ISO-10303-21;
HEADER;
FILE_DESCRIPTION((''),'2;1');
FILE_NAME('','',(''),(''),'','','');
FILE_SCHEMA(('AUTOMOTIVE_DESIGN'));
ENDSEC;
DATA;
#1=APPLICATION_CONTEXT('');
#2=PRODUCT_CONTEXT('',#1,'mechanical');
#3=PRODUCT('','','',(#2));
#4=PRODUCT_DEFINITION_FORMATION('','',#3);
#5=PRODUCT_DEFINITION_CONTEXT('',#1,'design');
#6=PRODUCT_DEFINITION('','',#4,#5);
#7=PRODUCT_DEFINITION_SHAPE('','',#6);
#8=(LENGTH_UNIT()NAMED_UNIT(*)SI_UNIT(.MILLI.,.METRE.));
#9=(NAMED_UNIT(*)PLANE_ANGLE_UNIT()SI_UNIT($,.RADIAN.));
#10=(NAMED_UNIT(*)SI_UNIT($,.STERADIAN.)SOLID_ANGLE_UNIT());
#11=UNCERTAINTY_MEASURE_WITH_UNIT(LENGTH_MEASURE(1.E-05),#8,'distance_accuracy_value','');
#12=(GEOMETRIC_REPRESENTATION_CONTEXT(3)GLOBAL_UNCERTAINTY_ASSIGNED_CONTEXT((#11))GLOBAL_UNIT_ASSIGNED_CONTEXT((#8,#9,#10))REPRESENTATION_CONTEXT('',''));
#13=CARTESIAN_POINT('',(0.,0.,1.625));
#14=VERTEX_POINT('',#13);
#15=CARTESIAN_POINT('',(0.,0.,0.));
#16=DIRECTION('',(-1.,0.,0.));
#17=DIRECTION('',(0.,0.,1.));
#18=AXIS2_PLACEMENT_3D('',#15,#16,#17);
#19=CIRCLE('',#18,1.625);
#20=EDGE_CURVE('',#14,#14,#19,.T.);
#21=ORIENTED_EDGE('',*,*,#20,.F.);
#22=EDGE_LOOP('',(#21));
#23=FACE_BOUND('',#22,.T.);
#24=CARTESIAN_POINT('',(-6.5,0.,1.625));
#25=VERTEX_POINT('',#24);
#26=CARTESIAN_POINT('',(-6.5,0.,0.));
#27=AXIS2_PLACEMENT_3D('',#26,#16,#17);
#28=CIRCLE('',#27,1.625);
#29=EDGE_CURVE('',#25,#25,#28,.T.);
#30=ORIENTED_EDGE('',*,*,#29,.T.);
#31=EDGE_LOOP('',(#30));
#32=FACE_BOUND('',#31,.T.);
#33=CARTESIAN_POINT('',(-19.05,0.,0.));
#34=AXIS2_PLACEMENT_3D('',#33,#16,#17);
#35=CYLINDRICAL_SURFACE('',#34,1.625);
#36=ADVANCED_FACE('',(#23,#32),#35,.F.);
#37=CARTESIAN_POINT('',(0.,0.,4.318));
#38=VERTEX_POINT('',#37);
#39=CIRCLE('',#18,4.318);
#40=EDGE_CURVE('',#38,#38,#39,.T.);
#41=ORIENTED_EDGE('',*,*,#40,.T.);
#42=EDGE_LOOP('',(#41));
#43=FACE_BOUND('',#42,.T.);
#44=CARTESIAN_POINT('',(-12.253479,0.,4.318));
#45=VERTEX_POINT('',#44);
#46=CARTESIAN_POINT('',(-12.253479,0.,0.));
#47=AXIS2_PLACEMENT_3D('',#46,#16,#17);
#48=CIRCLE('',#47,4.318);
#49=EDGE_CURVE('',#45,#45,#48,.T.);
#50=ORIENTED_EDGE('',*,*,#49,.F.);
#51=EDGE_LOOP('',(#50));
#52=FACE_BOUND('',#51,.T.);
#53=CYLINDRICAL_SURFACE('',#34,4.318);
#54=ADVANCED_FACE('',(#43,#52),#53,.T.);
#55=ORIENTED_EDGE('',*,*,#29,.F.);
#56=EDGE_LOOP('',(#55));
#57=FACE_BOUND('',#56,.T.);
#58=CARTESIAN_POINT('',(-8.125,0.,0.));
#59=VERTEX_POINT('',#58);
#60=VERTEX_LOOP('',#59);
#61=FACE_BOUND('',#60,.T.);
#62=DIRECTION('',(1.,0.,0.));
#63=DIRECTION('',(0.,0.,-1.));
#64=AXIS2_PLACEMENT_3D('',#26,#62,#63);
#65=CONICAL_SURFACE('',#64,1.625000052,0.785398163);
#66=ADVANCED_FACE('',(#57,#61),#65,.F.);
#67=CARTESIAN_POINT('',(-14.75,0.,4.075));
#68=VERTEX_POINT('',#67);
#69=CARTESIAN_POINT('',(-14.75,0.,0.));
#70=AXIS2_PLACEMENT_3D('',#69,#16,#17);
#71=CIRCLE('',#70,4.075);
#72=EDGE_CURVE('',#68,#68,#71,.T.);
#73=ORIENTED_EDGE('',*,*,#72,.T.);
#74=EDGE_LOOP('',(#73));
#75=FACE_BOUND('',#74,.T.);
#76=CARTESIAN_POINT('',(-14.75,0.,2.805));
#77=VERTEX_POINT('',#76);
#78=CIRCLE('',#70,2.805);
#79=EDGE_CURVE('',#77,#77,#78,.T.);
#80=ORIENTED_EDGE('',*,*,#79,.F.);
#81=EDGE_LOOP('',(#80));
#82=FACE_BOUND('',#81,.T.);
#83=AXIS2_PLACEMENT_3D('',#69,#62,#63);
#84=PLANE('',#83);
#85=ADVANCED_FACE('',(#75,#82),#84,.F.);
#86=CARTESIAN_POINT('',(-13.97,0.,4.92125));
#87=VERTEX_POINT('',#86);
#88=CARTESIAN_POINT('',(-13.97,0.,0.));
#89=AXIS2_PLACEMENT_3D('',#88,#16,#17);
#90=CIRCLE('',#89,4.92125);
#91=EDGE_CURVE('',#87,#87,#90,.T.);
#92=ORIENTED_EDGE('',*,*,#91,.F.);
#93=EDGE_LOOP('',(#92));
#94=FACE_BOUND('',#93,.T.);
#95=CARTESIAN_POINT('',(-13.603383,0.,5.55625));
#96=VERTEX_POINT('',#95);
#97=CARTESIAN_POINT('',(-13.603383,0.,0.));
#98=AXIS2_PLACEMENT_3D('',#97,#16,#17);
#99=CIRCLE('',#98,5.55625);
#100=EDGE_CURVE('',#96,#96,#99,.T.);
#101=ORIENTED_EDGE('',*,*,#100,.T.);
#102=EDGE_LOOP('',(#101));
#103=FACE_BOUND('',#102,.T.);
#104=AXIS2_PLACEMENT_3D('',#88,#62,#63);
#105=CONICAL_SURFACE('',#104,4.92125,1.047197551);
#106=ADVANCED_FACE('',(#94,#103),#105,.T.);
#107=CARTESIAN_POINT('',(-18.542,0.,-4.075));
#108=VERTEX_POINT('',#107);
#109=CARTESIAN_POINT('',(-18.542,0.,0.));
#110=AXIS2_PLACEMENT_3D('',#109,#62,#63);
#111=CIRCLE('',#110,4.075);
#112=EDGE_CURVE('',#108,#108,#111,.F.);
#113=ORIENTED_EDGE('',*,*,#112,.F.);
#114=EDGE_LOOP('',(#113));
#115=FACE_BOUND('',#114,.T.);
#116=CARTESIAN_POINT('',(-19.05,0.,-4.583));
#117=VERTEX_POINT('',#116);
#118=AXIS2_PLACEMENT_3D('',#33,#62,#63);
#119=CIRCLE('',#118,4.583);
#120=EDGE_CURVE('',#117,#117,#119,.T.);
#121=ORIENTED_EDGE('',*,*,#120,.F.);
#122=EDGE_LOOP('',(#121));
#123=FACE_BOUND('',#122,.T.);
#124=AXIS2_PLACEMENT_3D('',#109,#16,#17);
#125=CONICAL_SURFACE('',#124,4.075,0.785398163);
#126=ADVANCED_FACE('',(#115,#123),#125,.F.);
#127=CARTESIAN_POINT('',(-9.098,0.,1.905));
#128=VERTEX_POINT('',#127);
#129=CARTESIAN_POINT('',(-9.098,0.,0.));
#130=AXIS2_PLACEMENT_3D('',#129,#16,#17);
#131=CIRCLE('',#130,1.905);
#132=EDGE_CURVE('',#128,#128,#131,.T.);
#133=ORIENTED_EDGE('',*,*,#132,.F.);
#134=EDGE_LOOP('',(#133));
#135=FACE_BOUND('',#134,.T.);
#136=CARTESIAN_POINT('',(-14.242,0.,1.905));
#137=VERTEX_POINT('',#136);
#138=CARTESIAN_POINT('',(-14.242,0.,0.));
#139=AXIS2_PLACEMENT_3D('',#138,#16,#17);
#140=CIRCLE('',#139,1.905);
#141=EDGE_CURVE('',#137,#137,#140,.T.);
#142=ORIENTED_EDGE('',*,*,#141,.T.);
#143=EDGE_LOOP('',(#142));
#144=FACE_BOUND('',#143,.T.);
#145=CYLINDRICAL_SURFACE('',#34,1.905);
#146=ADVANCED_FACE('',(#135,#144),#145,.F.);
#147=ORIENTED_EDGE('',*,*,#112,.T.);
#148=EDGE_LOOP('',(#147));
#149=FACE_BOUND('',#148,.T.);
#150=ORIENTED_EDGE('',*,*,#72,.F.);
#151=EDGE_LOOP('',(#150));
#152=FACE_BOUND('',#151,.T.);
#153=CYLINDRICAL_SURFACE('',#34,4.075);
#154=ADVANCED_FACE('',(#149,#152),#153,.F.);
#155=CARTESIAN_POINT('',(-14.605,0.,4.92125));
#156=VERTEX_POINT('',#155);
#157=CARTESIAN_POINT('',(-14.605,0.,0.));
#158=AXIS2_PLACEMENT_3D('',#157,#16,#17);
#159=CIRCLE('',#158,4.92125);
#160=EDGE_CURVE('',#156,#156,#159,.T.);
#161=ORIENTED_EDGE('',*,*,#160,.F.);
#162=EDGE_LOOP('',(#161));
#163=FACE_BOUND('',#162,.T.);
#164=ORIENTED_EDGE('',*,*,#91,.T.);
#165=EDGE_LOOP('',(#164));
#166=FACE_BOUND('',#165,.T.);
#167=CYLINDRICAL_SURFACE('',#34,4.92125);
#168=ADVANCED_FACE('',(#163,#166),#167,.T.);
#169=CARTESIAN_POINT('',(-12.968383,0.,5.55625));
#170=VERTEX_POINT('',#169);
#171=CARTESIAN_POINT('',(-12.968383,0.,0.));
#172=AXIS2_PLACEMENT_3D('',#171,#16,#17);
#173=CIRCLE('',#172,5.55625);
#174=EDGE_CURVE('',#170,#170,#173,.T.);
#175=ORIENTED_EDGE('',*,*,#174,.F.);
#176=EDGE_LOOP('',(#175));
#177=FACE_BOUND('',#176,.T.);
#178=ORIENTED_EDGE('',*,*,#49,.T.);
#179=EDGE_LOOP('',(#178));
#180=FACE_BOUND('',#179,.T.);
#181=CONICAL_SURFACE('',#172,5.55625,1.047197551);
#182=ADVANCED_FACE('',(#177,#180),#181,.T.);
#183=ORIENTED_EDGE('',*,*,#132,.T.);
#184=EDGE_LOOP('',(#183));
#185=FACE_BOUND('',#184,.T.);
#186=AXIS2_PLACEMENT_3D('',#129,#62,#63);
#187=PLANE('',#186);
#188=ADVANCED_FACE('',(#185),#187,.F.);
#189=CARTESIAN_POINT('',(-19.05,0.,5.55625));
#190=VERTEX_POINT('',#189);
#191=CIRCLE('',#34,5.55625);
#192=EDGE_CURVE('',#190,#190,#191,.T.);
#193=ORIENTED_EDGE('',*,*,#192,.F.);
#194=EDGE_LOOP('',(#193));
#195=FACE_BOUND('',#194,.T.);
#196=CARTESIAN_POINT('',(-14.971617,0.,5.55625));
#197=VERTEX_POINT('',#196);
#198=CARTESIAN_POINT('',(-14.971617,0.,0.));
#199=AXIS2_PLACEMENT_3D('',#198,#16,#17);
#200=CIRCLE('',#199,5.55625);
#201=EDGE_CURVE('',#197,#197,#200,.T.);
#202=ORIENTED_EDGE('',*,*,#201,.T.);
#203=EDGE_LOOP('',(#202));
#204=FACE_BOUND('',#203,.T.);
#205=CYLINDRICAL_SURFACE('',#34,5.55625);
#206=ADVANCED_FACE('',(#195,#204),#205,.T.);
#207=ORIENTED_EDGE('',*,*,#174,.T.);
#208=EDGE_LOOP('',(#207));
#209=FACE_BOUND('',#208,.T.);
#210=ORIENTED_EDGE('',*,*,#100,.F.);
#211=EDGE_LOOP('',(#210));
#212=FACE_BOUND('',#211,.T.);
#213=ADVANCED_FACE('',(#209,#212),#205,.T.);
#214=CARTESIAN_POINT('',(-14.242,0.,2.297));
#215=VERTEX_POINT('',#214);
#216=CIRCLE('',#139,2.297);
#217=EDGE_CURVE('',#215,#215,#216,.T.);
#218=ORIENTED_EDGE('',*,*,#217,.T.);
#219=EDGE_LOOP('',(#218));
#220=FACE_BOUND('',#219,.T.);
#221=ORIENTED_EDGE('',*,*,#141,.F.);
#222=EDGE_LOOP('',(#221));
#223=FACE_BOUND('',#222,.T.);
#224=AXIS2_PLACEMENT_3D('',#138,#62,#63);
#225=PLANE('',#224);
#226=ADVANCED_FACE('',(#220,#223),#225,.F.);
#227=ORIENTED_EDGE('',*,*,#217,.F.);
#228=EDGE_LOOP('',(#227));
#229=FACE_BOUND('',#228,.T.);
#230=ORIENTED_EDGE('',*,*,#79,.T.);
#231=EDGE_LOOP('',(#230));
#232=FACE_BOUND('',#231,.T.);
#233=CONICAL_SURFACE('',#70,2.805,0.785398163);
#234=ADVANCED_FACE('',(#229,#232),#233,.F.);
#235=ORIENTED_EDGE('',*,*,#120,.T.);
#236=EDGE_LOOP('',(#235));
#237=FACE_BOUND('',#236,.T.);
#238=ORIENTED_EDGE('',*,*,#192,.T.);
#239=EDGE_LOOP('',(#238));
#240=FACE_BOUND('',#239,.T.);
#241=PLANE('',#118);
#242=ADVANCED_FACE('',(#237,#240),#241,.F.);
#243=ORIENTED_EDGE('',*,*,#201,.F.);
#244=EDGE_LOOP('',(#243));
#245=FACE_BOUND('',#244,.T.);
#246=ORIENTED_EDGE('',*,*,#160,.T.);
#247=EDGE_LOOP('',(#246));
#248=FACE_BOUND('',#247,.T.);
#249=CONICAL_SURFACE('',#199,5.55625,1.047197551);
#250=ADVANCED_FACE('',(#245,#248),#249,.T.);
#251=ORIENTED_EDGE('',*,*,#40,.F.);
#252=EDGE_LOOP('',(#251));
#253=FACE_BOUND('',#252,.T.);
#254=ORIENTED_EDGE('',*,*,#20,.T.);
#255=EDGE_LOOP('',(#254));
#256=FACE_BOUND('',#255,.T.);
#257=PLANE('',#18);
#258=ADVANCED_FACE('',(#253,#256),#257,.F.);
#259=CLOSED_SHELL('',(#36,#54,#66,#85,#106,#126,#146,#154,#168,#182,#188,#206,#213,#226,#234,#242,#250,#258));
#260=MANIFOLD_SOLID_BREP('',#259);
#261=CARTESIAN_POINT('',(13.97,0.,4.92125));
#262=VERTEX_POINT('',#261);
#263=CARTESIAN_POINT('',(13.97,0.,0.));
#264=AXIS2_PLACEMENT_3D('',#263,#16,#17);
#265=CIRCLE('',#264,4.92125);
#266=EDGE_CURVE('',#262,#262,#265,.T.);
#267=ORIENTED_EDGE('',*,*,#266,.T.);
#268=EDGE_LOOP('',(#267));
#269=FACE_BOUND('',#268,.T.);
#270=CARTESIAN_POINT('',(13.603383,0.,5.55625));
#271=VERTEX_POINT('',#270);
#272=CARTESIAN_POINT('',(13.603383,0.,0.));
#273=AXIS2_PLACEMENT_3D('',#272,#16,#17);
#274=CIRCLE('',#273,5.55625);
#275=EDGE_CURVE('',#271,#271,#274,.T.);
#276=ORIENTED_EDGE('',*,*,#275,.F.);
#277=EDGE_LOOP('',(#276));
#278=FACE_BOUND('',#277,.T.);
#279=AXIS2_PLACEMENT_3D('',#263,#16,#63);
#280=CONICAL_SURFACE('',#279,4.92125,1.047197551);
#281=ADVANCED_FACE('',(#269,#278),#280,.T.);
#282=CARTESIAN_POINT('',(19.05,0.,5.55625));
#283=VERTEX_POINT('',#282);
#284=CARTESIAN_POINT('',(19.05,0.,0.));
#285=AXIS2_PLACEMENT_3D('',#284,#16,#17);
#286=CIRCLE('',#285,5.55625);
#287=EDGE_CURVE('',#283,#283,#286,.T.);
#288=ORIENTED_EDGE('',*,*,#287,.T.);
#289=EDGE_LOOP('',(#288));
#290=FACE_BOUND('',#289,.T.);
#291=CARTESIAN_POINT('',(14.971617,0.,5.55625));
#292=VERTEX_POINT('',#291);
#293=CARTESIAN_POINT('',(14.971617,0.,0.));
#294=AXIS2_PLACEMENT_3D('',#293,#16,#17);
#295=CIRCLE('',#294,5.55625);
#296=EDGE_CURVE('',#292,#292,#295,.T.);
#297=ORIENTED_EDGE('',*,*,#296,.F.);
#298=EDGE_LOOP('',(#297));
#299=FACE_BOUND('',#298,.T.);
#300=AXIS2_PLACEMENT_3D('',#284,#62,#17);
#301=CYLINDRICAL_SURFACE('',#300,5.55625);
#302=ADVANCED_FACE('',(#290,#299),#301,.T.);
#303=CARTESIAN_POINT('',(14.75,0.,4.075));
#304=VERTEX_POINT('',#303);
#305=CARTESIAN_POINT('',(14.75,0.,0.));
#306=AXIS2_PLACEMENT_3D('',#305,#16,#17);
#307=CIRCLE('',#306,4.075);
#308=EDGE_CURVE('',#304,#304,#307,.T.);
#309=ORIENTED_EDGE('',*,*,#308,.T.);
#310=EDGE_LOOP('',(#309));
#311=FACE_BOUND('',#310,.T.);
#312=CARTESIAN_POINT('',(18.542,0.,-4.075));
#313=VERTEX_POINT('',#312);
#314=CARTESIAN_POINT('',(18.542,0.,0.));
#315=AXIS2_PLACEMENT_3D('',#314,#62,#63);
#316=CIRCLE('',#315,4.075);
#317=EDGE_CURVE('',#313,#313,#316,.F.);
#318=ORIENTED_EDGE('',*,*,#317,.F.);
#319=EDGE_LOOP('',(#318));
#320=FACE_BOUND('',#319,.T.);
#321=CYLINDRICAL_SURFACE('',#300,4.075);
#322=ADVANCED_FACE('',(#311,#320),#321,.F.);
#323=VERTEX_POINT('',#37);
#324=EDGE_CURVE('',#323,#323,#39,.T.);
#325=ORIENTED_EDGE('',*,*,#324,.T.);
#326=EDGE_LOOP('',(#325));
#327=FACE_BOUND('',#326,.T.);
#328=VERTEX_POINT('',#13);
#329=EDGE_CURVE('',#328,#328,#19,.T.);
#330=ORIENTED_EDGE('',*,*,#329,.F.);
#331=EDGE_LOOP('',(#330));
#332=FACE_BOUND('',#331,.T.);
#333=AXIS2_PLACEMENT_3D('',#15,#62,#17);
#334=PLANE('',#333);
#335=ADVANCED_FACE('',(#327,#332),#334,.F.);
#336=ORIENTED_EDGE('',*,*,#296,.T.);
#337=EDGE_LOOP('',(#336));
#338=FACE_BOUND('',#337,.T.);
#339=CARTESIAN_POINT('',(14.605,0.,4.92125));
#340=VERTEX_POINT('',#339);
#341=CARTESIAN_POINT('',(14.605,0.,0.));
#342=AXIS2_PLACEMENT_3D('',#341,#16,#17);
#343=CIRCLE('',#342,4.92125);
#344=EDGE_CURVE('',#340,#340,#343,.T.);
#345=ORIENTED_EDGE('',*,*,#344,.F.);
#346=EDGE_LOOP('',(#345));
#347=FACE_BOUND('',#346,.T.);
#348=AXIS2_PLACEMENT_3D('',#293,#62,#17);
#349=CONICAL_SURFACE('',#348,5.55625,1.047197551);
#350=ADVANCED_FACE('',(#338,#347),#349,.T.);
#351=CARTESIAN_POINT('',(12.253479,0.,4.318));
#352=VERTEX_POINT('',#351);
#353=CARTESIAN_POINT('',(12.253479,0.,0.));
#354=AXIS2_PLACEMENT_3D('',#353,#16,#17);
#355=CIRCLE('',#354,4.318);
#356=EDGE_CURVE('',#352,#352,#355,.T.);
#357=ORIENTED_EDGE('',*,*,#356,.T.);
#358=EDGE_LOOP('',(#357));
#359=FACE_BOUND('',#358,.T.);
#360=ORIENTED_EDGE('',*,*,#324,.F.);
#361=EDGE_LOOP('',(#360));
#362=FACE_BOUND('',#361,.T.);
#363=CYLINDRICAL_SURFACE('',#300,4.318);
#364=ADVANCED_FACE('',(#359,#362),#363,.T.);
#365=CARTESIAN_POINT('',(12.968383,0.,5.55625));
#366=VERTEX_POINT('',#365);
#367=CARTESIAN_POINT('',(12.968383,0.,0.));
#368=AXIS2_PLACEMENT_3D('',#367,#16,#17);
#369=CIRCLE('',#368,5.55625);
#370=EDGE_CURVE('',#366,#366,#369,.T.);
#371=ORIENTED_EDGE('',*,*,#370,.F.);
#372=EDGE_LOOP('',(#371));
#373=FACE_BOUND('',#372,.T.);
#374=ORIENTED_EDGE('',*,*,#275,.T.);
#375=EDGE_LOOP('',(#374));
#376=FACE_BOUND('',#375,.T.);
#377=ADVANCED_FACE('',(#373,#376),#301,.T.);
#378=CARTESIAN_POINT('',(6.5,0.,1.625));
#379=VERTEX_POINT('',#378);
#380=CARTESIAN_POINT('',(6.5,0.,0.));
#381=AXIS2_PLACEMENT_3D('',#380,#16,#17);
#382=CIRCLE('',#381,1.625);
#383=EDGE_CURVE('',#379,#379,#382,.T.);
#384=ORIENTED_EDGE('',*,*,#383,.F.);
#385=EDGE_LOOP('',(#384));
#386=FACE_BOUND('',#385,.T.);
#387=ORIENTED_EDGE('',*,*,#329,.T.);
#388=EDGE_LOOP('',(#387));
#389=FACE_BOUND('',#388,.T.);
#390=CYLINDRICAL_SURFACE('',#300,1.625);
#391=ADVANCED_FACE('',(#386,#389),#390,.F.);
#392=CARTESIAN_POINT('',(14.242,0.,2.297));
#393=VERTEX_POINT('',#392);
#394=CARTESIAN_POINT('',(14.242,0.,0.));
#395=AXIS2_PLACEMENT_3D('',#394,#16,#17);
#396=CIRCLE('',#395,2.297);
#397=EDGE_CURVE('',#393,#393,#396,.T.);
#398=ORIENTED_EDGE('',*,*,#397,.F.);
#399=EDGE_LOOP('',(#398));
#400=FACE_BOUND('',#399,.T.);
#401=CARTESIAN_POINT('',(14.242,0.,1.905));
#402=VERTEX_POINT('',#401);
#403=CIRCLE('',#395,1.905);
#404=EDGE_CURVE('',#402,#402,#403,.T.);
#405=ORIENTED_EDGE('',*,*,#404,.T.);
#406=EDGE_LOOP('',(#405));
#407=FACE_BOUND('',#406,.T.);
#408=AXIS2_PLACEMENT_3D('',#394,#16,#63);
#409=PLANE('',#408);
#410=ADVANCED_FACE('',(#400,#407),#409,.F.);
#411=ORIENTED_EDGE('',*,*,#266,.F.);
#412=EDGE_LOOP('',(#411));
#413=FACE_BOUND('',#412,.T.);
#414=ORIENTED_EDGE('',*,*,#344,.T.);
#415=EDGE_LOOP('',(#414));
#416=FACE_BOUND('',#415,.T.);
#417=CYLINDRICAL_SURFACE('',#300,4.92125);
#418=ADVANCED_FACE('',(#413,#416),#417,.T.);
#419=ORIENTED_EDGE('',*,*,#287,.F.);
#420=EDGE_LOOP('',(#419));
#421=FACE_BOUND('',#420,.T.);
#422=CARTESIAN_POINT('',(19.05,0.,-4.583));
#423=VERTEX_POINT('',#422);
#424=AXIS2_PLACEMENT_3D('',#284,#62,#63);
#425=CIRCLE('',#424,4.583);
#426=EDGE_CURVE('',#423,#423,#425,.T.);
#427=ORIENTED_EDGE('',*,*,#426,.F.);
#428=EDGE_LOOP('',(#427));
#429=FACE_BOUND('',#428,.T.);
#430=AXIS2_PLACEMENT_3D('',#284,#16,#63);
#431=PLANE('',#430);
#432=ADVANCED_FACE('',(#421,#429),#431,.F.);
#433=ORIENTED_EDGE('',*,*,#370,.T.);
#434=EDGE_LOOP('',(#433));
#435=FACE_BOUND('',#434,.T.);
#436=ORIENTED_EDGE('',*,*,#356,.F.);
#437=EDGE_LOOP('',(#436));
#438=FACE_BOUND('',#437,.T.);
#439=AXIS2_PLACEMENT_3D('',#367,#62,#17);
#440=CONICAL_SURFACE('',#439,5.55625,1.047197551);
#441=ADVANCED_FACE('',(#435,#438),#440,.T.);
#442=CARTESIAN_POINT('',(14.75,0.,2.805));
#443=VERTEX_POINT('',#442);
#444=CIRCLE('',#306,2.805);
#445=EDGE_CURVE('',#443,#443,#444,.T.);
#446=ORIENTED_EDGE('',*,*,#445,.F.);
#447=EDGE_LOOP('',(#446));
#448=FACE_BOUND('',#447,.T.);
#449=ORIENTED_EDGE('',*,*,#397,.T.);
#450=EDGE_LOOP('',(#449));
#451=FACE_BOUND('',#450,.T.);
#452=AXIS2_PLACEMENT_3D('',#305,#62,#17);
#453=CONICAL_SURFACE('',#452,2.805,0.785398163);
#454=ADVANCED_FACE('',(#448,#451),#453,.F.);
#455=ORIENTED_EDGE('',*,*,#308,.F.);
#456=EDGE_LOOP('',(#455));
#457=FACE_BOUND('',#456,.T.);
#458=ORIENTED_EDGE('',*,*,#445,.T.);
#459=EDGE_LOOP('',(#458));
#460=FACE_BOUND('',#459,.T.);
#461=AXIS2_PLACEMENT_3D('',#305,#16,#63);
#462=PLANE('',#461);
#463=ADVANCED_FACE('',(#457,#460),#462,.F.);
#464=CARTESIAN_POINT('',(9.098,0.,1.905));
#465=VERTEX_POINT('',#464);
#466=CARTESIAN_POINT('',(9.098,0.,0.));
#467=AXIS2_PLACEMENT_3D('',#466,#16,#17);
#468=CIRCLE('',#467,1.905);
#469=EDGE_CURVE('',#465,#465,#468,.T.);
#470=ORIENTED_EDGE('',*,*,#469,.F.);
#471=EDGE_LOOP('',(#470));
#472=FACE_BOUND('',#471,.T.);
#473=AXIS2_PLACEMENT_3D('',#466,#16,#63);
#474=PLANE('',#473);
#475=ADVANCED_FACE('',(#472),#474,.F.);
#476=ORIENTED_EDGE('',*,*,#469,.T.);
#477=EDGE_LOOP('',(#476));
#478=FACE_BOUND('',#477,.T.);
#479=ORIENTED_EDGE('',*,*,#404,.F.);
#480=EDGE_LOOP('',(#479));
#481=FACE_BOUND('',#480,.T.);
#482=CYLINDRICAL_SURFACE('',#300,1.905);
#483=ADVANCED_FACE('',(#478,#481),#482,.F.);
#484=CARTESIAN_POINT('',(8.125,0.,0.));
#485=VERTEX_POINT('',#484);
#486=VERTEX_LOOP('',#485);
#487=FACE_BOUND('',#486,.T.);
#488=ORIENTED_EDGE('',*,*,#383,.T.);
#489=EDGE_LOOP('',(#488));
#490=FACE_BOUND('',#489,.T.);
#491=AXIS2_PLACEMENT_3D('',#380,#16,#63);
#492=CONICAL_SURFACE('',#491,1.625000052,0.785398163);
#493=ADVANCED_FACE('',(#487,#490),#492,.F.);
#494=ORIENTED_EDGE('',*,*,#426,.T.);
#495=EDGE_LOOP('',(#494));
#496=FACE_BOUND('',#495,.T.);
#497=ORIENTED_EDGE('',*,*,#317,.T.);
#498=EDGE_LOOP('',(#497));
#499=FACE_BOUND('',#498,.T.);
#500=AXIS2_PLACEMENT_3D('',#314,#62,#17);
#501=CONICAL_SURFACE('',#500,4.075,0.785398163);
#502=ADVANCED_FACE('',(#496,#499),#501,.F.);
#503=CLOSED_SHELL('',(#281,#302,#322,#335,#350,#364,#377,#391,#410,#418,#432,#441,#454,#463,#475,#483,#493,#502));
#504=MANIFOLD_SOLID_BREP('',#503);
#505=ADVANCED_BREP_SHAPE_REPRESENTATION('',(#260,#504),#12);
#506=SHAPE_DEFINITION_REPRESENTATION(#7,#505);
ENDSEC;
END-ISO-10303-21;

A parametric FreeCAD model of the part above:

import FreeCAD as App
import Part
import Sketcher
Q = App.Units.Quantity


def edges_at(feature, points):
    """Names of the edges that pass closest to the given points."""
    edges = feature.Shape.Edges
    near = lambda p: min(range(len(edges)), key=lambda i: edges[i].distToShape(Part.Vertex(*p))[0])
    return sorted({f"Edge{near(p) + 1}" for p in points})


def add_polygon(sketch, points):
    """Adds a closed chain of lines whose ends are joined by coincident constraints."""
    first, n = sketch.GeometryCount, len(points)
    for a, b in zip(points, points[1:] + points[:1]):
        sketch.addGeometry(Part.LineSegment(App.Vector(*a, 0), App.Vector(*b, 0)), False)
    for i in range(n):
        sketch.addConstraint(Sketcher.Constraint("Coincident", first + i, 2, first + (i + 1) % n, 1))

doc = App.newDocument("Part")
body = doc.addObject("PartDesign::Body", "Body")

# Sketch on XY plane
sketch1 = body.newObject("Sketcher::SketchObject", "Sketch")
sketch1.AttachmentSupport = (doc.getObject("XY_Plane"), [""])
sketch1.MapMode = "FlatFace"
add_polygon(sketch1, [(-14.971617, 5.55625), (-19.05, 5.55625), (-19.05, 4.075), (-14.75, 4.075), (-14.75, 2.805), (-14.242, 2.297), (-14.242, 1.905), (-9.098, 1.905), (-9.098, 0), (-8.125, 0), (-6.5, 1.625), (0, 1.625), (0, 4.318), (-12.253479, 4.318), (-12.968383, 5.55625), (-13.603383, 5.55625), (-13.97, 4.92125), (-14.605, 4.92125)])  # lines 0-17
sketch1.addConstraint([
    Sketcher.Constraint("Horizontal", 0),
    Sketcher.Constraint("Vertical", 1),
    Sketcher.Constraint("Horizontal", 2),
    Sketcher.Constraint("Vertical", 3),
    Sketcher.Constraint("Vertical", 5),
    Sketcher.Constraint("Horizontal", 6),
    Sketcher.Constraint("Vertical", 7),
    Sketcher.Constraint("Horizontal", 8),
    Sketcher.Constraint("Horizontal", 10),
    Sketcher.Constraint("Vertical", 11),
    Sketcher.Constraint("Horizontal", 12),
    Sketcher.Constraint("Horizontal", 14),
    Sketcher.Constraint("Horizontal", 16),
    Sketcher.Constraint("PointOnObject", 7, 2, -1),
    Sketcher.Constraint("PointOnObject", 10, 2, -2),
    Sketcher.Constraint("Perpendicular", 4, 9),
    Sketcher.Constraint("Parallel", 13, 17),
    Sketcher.Constraint("Horizontal", 0, 2, 13, 2),
    Sketcher.Constraint("Equal", 14, 16),
    Sketcher.Constraint("Equal", 15, 17),
    Sketcher.Constraint("Angle", 4, Q("-45 deg")),
    Sketcher.Constraint("Angle", 13, Q("120 deg")),
    Sketcher.Constraint("DistanceY", 3, 2, 3, 1, Q("0.05 in")),
    Sketcher.Constraint("DistanceX", 14, 2, 14, 1, Q("0.025 in")),
    Sketcher.Constraint("DistanceY", 7, 2, 7, 1, Q("0.075 in")),
    Sketcher.Constraint("DistanceX", 0, 2, -1, 1, Q("0.75 in")),
    Sketcher.Constraint("DistanceY", -1, 1, 11, 2, Q("0.17 in")),
    Sketcher.Constraint("DistanceX", 15, 2, -1, 1, Q("0.55 in")),
    Sketcher.Constraint("DistanceX", 3, 2, 4, 2, Q("0.02 in")),
    Sketcher.Constraint("DistanceY", -1, 1, 0, 2, Q("0.21875 in")),
    Sketcher.Constraint("DistanceY", 15, 2, 14, 2, Q("0.025 in")),
    Sketcher.Constraint("DistanceX", 2, 1, 2, 2, Q("4.3 mm")),
    Sketcher.Constraint("DistanceX", 6, 1, 6, 2, Q("5.144 mm")),
    Sketcher.Constraint("DistanceX", 8, 1, 8, 2, Q("0.973 mm")),
    Sketcher.Constraint("DistanceX", 10, 1, 10, 2, Q("6.5 mm")),
    Sketcher.Constraint("DistanceY", 5, 2, 5, 1, Q("0.392 mm")),
])
revolution = body.newObject("PartDesign::Revolution", "Revolution")
revolution.Profile = sketch1
revolution.ReferenceAxis = (sketch1, ["H_Axis"])
revolution.Angle = 360
doc.recompute()

chamfer = body.newObject("PartDesign::Chamfer", "Chamfer")
chamfer.Base = (revolution, edges_at(revolution, [(-19.05, 0, -4.075)]))
chamfer.Size = Q("0.02 in")
body2 = doc.addObject("PartDesign::Body", "Body001")
doc.recompute()

mirroring = doc.addObject("Part::Mirroring", "Mirroring")
mirroring.Source = body
mirroring.Base = App.Vector(0, 0, 0)
mirroring.Normal = App.Vector(1, 0, 0)
body2.BaseFeature = mirroring
doc.recompute()
mirroring.Visibility = False

doc.recompute()
